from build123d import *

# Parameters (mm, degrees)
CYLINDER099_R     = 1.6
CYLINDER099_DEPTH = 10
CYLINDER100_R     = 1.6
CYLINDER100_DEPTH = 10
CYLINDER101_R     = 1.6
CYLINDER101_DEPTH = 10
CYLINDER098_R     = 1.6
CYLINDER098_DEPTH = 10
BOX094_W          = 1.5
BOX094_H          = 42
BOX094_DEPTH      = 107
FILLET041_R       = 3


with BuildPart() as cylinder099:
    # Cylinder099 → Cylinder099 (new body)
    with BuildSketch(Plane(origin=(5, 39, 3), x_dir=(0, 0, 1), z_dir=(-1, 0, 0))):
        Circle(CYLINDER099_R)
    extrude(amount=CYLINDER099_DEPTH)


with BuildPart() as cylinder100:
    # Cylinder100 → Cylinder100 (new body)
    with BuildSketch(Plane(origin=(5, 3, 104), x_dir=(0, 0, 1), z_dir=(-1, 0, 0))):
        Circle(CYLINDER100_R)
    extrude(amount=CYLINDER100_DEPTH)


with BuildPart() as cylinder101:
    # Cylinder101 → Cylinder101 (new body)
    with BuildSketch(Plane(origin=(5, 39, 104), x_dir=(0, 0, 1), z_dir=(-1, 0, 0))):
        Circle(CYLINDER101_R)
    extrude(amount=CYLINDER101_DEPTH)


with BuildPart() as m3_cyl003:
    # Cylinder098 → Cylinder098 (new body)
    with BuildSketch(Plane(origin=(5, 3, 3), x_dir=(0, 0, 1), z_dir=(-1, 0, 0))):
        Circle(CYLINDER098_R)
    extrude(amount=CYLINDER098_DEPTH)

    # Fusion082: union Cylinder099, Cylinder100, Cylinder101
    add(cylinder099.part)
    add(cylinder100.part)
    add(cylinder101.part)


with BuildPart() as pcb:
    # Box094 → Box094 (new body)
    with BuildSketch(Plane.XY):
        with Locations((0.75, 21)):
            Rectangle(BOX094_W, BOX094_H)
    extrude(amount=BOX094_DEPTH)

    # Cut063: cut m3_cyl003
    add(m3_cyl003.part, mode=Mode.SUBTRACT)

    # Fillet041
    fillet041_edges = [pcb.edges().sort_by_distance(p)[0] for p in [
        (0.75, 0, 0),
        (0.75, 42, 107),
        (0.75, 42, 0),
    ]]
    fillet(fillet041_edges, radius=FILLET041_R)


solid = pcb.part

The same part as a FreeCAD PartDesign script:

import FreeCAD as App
import Part
import Sketcher
from FreeCAD import Vector


def edges_at(feature, points):
    """Names of the edges that pass closest to the given points."""
    edges = feature.Shape.Edges
    near = lambda p: min(range(len(edges)), key=lambda i: edges[i].distToShape(Part.Vertex(*p))[0])
    return sorted({f"Edge{near(p) + 1}" for p in points})

doc = App.newDocument("Part")
params = doc.addObject("Spreadsheet::Sheet", "Params")
for row, (alias, value) in enumerate([
    ("sketch1_diameter", "3.2 mm"),
    ("pad1_length", "10 mm"),
    ("sketch2_diameter", "3.2 mm"),
    ("pad2_length", "10 mm"),
    ("sketch3_diameter", "3.2 mm"),
    ("pad3_length", "10 mm"),
    ("sketch4_diameter", "3.2 mm"),
    ("pad4_length", "10 mm"),
    ("sketch5_height", "42 mm"),
    ("sketch5_width", "1.5 mm"),
    ("pad5_length", "107 mm"),
    ("fillet_radius", "3 mm"),
], start=1):
    params.set(f"A{row}", alias)
    params.set(f"B{row}", "=" + value)
    params.setAlias(f"B{row}", alias)

body = doc.addObject("PartDesign::Body", "Body")

# Sketch on YZ plane
sketch1 = body.newObject("Sketcher::SketchObject", "Sketch")
sketch1.AttachmentSupport = (doc.getObject("YZ_Plane"), [""])
sketch1.MapMode = "FlatFace"
sketch1.AttachmentOffset = App.Placement(Vector(0, 0, 5), App.Rotation())
sketch1.addGeometry(Part.Circle(Vector(39, 3, 0), Vector(0, 0, 1), 1.6), False)
sketch1.addConstraint(Sketcher.Constraint("Diameter", 0, 3.2))
sketch1.addConstraint(Sketcher.Constraint("DistanceX", -1, 1, 0, 3, 39.0))
sketch1.addConstraint(Sketcher.Constraint("DistanceY", -1, 1, 0, 3, 3.0))
sketch1.setExpression("Constraints[0]", "Params.sketch1_diameter")
pad1 = body.newObject("PartDesign::Pad", "Pad")
pad1.Profile = sketch1
pad1.setExpression("Length", "Params.pad1_length")
pad1.Reversed = True
body2 = doc.addObject("PartDesign::Body", "Body001")

# Sketch on YZ plane
sketch2 = body2.newObject("Sketcher::SketchObject", "Sketch001")
sketch2.AttachmentSupport = (doc.getObject("YZ_Plane001"), [""])
sketch2.MapMode = "FlatFace"
sketch2.AttachmentOffset = App.Placement(Vector(0, 0, 5), App.Rotation())
sketch2.addGeometry(Part.Circle(Vector(3, 104, 0), Vector(0, 0, 1), 1.6), False)
sketch2.addConstraint(Sketcher.Constraint("Diameter", 0, 3.2))
sketch2.addConstraint(Sketcher.Constraint("DistanceX", -1, 1, 0, 3, 3.0))
sketch2.addConstraint(Sketcher.Constraint("DistanceY", -1, 1, 0, 3, 104.0))
sketch2.setExpression("Constraints[0]", "Params.sketch2_diameter")
pad2 = body2.newObject("PartDesign::Pad", "Pad001")
pad2.Profile = sketch2
pad2.setExpression("Length", "Params.pad2_length")
pad2.Reversed = True
body3 = doc.addObject("PartDesign::Body", "Body002")

# Sketch on YZ plane
sketch3 = body3.newObject("Sketcher::SketchObject", "Sketch002")
sketch3.AttachmentSupport = (doc.getObject("YZ_Plane002"), [""])
sketch3.MapMode = "FlatFace"
sketch3.AttachmentOffset = App.Placement(Vector(0, 0, 5), App.Rotation())
sketch3.addGeometry(Part.Circle(Vector(39, 104, 0), Vector(0, 0, 1), 1.6), False)
sketch3.addConstraint(Sketcher.Constraint("Diameter", 0, 3.2))
sketch3.addConstraint(Sketcher.Constraint("DistanceX", -1, 1, 0, 3, 39.0))
sketch3.addConstraint(Sketcher.Constraint("DistanceY", -1, 1, 0, 3, 104.0))
sketch3.setExpression("Constraints[0]", "Params.sketch3_diameter")
pad3 = body3.newObject("PartDesign::Pad", "Pad002")
pad3.Profile = sketch3
pad3.setExpression("Length", "Params.pad3_length")
pad3.Reversed = True
body4 = doc.addObject("PartDesign::Body", "Body003")
body4.AllowCompound = True

# Sketch on YZ plane
sketch4 = body4.newObject("Sketcher::SketchObject", "Sketch003")
sketch4.AttachmentSupport = (doc.getObject("YZ_Plane003"), [""])
sketch4.MapMode = "FlatFace"
sketch4.AttachmentOffset = App.Placement(Vector(0, 0, 5), App.Rotation())
sketch4.addGeometry(Part.Circle(Vector(3, 3, 0), Vector(0, 0, 1), 1.6), False)
sketch4.addConstraint(Sketcher.Constraint("Diameter", 0, 3.2))
sketch4.addConstraint(Sketcher.Constraint("DistanceX", -1, 1, 0, 3, 3.0))
sketch4.addConstraint(Sketcher.Constraint("DistanceY", -1, 1, 0, 3, 3.0))
sketch4.setExpression("Constraints[0]", "Params.sketch4_diameter")
pad4 = body4.newObject("PartDesign::Pad", "Pad003")
pad4.Profile = sketch4
pad4.setExpression("Length", "Params.pad4_length")
pad4.Reversed = True
doc.recompute()

boolean = body4.newObject("PartDesign::Boolean", "Boolean")
boolean.Type = "Fuse"
boolean.addObjects([body])
doc.recompute()

boolean2 = body4.newObject("PartDesign::Boolean", "Boolean001")
boolean2.Type = "Fuse"
boolean2.addObjects([body2])
doc.recompute()

boolean3 = body4.newObject("PartDesign::Boolean", "Boolean002")
boolean3.Type = "Fuse"
boolean3.addObjects([body3])
body5 = doc.addObject("PartDesign::Body", "Body004")

# Sketch on XY plane
sketch5 = body5.newObject("Sketcher::SketchObject", "Sketch004")
sketch5.AttachmentSupport = (doc.getObject("XY_Plane004"), [""])
sketch5.MapMode = "FlatFace"
sketch5.addGeometry(Part.LineSegment(Vector(0, 42, 0), Vector(0, 0, 0)), False)
sketch5.addGeometry(Part.LineSegment(Vector(0, 0, 0), Vector(1.5, 0, 0)), False)
sketch5.addGeometry(Part.LineSegment(Vector(1.5, 0, 0), Vector(1.5, 42, 0)), False)
sketch5.addGeometry(Part.LineSegment(Vector(1.5, 42, 0), Vector(0, 42, 0)), False)
sketch5.addConstraint(Sketcher.Constraint("Coincident", 0, 2, 1, 1))
sketch5.addConstraint(Sketcher.Constraint("Coincident", 1, 2, 2, 1))
sketch5.addConstraint(Sketcher.Constraint("Coincident", 2, 2, 3, 1))
sketch5.addConstraint(Sketcher.Constraint("Coincident", 3, 2, 0, 1))
sketch5.addConstraint(Sketcher.Constraint("Vertical", 0))
sketch5.addConstraint(Sketcher.Constraint("Horizontal", 1))
sketch5.addConstraint(Sketcher.Constraint("Vertical", 2))
sketch5.addConstraint(Sketcher.Constraint("Horizontal", 3))
sketch5.addConstraint(Sketcher.Constraint("Coincident", 0, 2, -1, 1))
sketch5.addConstraint(Sketcher.Constraint("DistanceY", 0, 2, 0, 1, 42.0))
sketch5.addConstraint(Sketcher.Constraint("DistanceX", 1, 1, 1, 2, 1.5))
sketch5.setExpression("Constraints[9]", "Params.sketch5_height")
sketch5.setExpression("Constraints[10]", "Params.sketch5_width")
pad5 = body5.newObject("PartDesign::Pad", "Pad004")
pad5.Profile = sketch5
pad5.setExpression("Length", "Params.pad5_length")
doc.recompute()

boolean4 = body5.newObject("PartDesign::Boolean", "Boolean003")
boolean4.Type = "Cut"
boolean4.addObjects([body4])
doc.recompute()

fillet = body5.newObject("PartDesign::Fillet", "Fillet")
fillet.Base = (boolean4, edges_at(boolean4, [(0.75, 0, 0), (0.75, 42, 107), (0.75, 42, 0)]))
fillet.setExpression("Radius", "Params.fillet_radius")

doc.recompute()
